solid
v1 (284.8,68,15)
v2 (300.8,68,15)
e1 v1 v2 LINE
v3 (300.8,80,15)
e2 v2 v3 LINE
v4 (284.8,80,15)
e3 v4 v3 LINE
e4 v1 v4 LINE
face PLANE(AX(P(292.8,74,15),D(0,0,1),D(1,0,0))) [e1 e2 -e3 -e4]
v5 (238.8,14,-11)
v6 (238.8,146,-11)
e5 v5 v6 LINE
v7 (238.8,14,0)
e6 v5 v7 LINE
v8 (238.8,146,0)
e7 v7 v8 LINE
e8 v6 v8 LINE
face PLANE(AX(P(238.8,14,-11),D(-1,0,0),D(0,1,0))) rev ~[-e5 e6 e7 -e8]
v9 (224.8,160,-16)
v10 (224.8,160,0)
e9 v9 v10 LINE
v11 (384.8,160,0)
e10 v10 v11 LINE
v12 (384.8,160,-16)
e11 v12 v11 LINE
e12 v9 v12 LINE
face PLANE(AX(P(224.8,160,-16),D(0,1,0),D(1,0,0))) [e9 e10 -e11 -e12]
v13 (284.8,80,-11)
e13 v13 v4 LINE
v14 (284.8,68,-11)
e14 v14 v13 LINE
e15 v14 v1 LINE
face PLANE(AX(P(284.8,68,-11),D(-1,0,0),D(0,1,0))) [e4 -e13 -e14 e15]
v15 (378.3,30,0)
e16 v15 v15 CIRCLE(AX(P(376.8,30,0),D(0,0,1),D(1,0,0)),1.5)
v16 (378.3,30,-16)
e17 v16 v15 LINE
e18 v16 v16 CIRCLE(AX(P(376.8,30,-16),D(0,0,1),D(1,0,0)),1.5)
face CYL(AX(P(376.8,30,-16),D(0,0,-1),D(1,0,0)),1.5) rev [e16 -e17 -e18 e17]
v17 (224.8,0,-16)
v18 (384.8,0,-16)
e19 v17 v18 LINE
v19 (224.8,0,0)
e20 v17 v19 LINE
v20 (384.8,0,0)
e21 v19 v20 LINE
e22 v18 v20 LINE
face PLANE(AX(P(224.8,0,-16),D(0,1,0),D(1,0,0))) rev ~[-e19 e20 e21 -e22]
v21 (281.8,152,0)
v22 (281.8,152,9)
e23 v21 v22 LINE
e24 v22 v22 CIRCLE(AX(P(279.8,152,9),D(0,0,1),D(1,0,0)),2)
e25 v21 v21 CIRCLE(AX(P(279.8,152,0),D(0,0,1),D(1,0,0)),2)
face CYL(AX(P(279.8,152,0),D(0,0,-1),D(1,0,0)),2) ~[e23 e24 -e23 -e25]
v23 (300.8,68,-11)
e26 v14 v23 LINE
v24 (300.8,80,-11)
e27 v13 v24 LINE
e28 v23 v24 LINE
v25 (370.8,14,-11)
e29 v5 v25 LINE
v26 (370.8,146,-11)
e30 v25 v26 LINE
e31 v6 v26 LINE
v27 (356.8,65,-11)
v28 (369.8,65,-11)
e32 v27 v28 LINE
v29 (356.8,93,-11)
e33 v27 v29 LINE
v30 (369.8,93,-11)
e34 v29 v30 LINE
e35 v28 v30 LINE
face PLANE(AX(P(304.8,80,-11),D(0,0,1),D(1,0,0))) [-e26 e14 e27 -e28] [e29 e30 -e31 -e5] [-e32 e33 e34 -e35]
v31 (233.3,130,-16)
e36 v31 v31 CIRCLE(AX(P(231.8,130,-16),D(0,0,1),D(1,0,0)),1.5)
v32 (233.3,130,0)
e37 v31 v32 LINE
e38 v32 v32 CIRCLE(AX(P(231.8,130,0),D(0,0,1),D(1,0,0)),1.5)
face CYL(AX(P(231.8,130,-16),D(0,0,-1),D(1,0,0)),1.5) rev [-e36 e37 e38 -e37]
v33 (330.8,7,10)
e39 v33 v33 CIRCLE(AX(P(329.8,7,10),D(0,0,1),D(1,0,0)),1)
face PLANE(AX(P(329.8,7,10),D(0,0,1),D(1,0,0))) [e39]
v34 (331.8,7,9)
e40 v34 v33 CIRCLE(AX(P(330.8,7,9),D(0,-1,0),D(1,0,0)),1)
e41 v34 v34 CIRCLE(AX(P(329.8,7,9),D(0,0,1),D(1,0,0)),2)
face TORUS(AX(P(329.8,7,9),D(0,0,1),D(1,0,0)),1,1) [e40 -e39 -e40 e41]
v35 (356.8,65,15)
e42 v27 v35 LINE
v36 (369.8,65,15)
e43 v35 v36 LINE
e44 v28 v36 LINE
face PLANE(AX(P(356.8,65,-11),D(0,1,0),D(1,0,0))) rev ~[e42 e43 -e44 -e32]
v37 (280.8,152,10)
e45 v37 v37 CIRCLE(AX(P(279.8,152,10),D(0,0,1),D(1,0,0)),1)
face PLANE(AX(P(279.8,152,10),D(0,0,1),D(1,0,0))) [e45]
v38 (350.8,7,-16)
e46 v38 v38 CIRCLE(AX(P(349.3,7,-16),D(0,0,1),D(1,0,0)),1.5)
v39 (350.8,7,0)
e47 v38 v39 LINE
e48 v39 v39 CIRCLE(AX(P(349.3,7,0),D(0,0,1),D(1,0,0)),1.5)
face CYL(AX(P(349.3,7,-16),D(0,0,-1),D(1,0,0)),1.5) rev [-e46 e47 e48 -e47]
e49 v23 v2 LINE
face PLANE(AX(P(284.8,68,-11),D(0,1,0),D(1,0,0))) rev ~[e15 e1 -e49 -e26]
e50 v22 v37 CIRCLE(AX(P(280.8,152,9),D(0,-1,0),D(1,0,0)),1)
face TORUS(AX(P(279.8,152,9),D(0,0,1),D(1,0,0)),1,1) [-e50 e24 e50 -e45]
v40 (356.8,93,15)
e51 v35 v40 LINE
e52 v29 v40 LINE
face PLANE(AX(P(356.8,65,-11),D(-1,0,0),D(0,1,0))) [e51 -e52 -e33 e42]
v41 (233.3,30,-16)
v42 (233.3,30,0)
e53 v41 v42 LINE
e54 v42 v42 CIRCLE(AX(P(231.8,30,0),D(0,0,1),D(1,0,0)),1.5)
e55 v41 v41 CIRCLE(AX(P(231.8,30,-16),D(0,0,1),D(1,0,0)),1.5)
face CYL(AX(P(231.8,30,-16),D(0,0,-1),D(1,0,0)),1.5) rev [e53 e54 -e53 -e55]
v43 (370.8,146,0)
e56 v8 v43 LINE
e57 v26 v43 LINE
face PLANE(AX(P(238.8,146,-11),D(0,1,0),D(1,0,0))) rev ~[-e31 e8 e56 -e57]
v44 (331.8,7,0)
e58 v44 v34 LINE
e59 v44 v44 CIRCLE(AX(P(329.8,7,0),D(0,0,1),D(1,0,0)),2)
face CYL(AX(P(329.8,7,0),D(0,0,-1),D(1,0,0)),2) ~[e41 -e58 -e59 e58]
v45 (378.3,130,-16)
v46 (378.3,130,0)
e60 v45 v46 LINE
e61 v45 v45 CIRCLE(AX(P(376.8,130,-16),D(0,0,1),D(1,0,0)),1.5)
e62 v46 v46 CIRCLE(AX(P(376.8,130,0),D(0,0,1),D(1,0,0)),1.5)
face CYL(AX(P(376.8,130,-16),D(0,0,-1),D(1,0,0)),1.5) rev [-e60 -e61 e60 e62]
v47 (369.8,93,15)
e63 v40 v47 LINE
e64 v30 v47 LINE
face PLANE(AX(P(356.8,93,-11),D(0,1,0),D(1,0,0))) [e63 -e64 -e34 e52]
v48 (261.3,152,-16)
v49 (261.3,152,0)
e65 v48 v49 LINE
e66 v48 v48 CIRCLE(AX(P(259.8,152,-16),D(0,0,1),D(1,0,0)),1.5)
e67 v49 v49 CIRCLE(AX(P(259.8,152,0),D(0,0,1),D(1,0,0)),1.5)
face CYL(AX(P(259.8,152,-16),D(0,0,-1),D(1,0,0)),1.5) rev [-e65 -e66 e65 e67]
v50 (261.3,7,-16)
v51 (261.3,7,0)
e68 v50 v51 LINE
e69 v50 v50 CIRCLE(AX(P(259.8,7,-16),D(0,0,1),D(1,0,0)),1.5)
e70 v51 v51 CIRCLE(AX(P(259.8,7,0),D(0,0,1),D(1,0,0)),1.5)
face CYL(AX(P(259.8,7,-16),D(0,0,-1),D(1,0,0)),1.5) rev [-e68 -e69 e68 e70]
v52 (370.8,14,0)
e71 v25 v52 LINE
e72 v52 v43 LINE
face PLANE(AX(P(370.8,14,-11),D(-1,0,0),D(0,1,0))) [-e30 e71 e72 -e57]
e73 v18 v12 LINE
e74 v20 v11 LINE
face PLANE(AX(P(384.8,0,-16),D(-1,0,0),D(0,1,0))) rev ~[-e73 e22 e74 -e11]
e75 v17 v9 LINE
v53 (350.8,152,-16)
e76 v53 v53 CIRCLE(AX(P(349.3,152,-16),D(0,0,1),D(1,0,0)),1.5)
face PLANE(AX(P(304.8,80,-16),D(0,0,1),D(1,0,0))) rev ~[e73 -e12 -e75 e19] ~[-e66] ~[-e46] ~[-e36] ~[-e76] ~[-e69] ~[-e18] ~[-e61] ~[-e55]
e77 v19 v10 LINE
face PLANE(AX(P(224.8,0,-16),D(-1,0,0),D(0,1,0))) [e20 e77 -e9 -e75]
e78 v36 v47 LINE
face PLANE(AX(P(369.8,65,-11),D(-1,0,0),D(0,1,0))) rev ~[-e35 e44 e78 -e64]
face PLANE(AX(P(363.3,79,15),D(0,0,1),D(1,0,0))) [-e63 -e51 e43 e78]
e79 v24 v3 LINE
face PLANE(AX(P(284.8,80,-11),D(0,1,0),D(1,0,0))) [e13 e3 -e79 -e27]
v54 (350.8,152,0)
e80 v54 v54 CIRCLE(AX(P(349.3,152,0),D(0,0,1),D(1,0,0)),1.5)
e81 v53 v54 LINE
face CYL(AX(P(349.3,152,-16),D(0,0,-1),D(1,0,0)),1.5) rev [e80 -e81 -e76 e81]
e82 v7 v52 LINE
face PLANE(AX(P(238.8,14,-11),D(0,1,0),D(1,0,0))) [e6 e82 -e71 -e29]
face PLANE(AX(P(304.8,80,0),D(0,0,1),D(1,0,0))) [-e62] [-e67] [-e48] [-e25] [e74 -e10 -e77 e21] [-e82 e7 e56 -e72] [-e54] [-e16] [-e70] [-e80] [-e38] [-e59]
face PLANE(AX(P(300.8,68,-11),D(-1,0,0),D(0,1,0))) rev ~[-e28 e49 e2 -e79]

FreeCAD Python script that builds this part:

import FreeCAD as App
import Part
import Sketcher
Q = App.Units.Quantity


def edges_at(feature, points):
    """Names of the edges that pass closest to the given points."""
    edges = feature.Shape.Edges
    near = lambda p: min(range(len(edges)), key=lambda i: edges[i].distToShape(Part.Vertex(*p))[0])
    return sorted({f"Edge{near(p) + 1}" for p in points})


def add_polygon(sketch, points):
    """Adds a closed chain of lines whose ends are joined by coincident constraints."""
    first, n = sketch.GeometryCount, len(points)
    for a, b in zip(points, points[1:] + points[:1]):
        sketch.addGeometry(Part.LineSegment(App.Vector(*a, 0), App.Vector(*b, 0)), False)
    for i in range(n):
        sketch.addConstraint(Sketcher.Constraint("Coincident", first + i, 2, first + (i + 1) % n, 1))

doc = App.newDocument("Part")
body = doc.addObject("PartDesign::Body", "Body")

sketch1 = doc.addObject("Sketcher::SketchObject", "Sketch")
body.addObject(sketch1)
sketch1.AttachmentSupport = (doc.XY_Plane, [""])
sketch1.MapMode = "FlatFace"
sketch1.AttachmentOffset = App.Placement(App.Vector(0, 0, 16), App.Rotation())
sketch1.addGeometry(Part.Circle(App.Vector(55, 152, 0), App.Vector(0, 0, 1), 2), False)
sketch1.addConstraint([
    Sketcher.Constraint("Diameter", 0, Q("4 mm")),
    Sketcher.Constraint("DistanceX", -1, 1, 0, 3, Q("55 mm")),
    Sketcher.Constraint("DistanceY", -1, 1, 0, 3, Q("152 mm")),
])
pad1 = doc.addObject("PartDesign::Pad", "Pad")
body.addObject(pad1)
pad1.Profile = sketch1
pad1.Length = 10
doc.recompute()

fillet = doc.addObject("PartDesign::Fillet", "Fillet")
body.addObject(fillet)
fillet.Base = (pad1, edges_at(pad1, [(53, 152, 26)]))
fillet.Radius = 1
body2 = doc.addObject("PartDesign::Body", "Body001")

sketch2 = doc.addObject("Sketcher::SketchObject", "Sketch001")
body2.addObject(sketch2)
sketch2.AttachmentSupport = (doc.getObject("XY_Plane001"), [""])
sketch2.MapMode = "FlatFace"
sketch2.AttachmentOffset = App.Placement(App.Vector(0, 0, 16), App.Rotation())
sketch2.addGeometry(Part.Circle(App.Vector(105, 7, 0), App.Vector(0, 0, 1), 2), False)
sketch2.addConstraint([
    Sketcher.Constraint("Diameter", 0, Q("4 mm")),
    Sketcher.Constraint("DistanceX", -1, 1, 0, 3, Q("105 mm")),
    Sketcher.Constraint("DistanceY", -1, 1, 0, 3, Q("7 mm")),
])
pad2 = doc.addObject("PartDesign::Pad", "Pad001")
body2.addObject(pad2)
pad2.Profile = sketch2
pad2.Length = 10
doc.recompute()

fillet2 = doc.addObject("PartDesign::Fillet", "Fillet001")
body2.addObject(fillet2)
fillet2.Base = (pad2, edges_at(pad2, [(103, 7, 26)]))
fillet2.Radius = 1
body3 = doc.addObject("PartDesign::Body", "Body002")

sketch3 = doc.addObject("Sketcher::SketchObject", "Sketch002")
body3.addObject(sketch3)
sketch3.AttachmentSupport = (doc.getObject("XY_Plane002"), [""])
sketch3.MapMode = "FlatFace"
sketch3.AttachmentOffset = App.Placement(App.Vector(0, 0, 5), App.Rotation())
add_polygon(sketch3, [(60, 80), (60, 68), (76, 68), (76, 80)])
sketch3.addConstraint([
    Sketcher.Constraint("Vertical", 0),
    Sketcher.Constraint("Horizontal", 1),
    Sketcher.Constraint("Vertical", 2),
    Sketcher.Constraint("Horizontal", 3),
    Sketcher.Constraint("DistanceX", 1, 1, 1, 2, Q("16 mm")),
    Sketcher.Constraint("DistanceY", 0, 2, 0, 1, Q("12 mm")),
    Sketcher.Constraint("DistanceX", -1, 1, 0, 2, Q("60 mm")),
    Sketcher.Constraint("DistanceY", -1, 1, 0, 2, Q("68 mm")),
])
pad3 = doc.addObject("PartDesign::Pad", "Pad002")
body3.addObject(pad3)
pad3.Profile = sketch3
pad3.Length = 26
body4 = doc.addObject("PartDesign::Body", "Body003")

sketch4 = doc.addObject("Sketcher::SketchObject", "Sketch003")
body4.addObject(sketch4)
sketch4.AttachmentSupport = (doc.getObject("XY_Plane003"), [""])
sketch4.MapMode = "FlatFace"
sketch4.AttachmentOffset = App.Placement(App.Vector(0, 0, 5), App.Rotation())
add_polygon(sketch4, [(132, 93), (132, 65), (145, 65), (145, 93)])
sketch4.addConstraint([
    Sketcher.Constraint("Vertical", 0),
    Sketcher.Constraint("Horizontal", 1),
    Sketcher.Constraint("Vertical", 2),
    Sketcher.Constraint("Horizontal", 3),
    Sketcher.Constraint("DistanceX", 1, 1, 1, 2, Q("13 mm")),
    Sketcher.Constraint("DistanceY", 0, 2, 0, 1, Q("28 mm")),
    Sketcher.Constraint("DistanceX", -1, 1, 0, 2, Q("132 mm")),
    Sketcher.Constraint("DistanceY", -1, 1, 0, 2, Q("65 mm")),
])
pad4 = doc.addObject("PartDesign::Pad", "Pad003")
body4.addObject(pad4)
pad4.Profile = sketch4
pad4.Length = 26
body5 = doc.addObject("PartDesign::Body", "Body004")

sketch5 = doc.addObject("Sketcher::SketchObject", "Sketch004")
body5.addObject(sketch5)
sketch5.AttachmentSupport = (doc.getObject("XY_Plane004"), [""])
sketch5.MapMode = "FlatFace"
sketch5.addGeometry(Part.Circle(App.Vector(35, 7, 0), App.Vector(0, 0, 1), 1.5), False)
sketch5.addConstraint([
    Sketcher.Constraint("Diameter", 0, Q("3 mm")),
    Sketcher.Constraint("DistanceX", -1, 1, 0, 3, Q("35 mm")),
    Sketcher.Constraint("DistanceY", -1, 1, 0, 3, Q("7 mm")),
])
pad5 = doc.addObject("PartDesign::Pad", "Pad004")
body5.addObject(pad5)
pad5.Profile = sketch5
pad5.Length = 16
body6 = doc.addObject("PartDesign::Body", "Body005")

sketch6 = doc.addObject("Sketcher::SketchObject", "Sketch005")
body6.addObject(sketch6)
sketch6.AttachmentSupport = (doc.getObject("XY_Plane005"), [""])
sketch6.MapMode = "FlatFace"
sketch6.addGeometry(Part.Circle(App.Vector(124.5, 7, 0), App.Vector(0, 0, 1), 1.5), False)
sketch6.addConstraint([
    Sketcher.Constraint("Diameter", 0, Q("3 mm")),
    Sketcher.Constraint("DistanceY", -1, 1, 0, 3, Q("7 mm")),
    Sketcher.Constraint("DistanceX", -1, 1, 0, 3, Q("124.5 mm")),
])
pad6 = doc.addObject("PartDesign::Pad", "Pad005")
body6.addObject(pad6)
pad6.Profile = sketch6
pad6.Length = 16
body7 = doc.addObject("PartDesign::Body", "Body006")

sketch7 = doc.addObject("Sketcher::SketchObject", "Sketch006")
body7.addObject(sketch7)
sketch7.AttachmentSupport = (doc.getObject("XY_Plane006"), [""])
sketch7.MapMode = "FlatFace"
sketch7.addGeometry(Part.Circle(App.Vector(35, 152, 0), App.Vector(0, 0, 1), 1.5), False)
sketch7.addConstraint([
    Sketcher.Constraint("Diameter", 0, Q("3 mm")),
    Sketcher.Constraint("DistanceX", -1, 1, 0, 3, Q("35 mm")),
    Sketcher.Constraint("DistanceY", -1, 1, 0, 3, Q("152 mm")),
])
pad7 = doc.addObject("PartDesign::Pad", "Pad006")
body7.addObject(pad7)
pad7.Profile = sketch7
pad7.Length = 16
body8 = doc.addObject("PartDesign::Body", "Body007")

sketch8 = doc.addObject("Sketcher::SketchObject", "Sketch007")
body8.addObject(sketch8)
sketch8.AttachmentSupport = (doc.getObject("XY_Plane007"), [""])
sketch8.MapMode = "FlatFace"
sketch8.addGeometry(Part.Circle(App.Vector(124.5, 152, 0), App.Vector(0, 0, 1), 1.5), False)
sketch8.addConstraint([
    Sketcher.Constraint("Diameter", 0, Q("3 mm")),
    Sketcher.Constraint("DistanceY", -1, 1, 0, 3, Q("152 mm")),
    Sketcher.Constraint("DistanceX", -1, 1, 0, 3, Q("124.5 mm")),
])
pad8 = doc.addObject("PartDesign::Pad", "Pad007")
body8.addObject(pad8)
pad8.Profile = sketch8
pad8.Length = 16
body9 = doc.addObject("PartDesign::Body", "Body008")

sketch9 = doc.addObject("Sketcher::SketchObject", "Sketch008")
body9.addObject(sketch9)
sketch9.AttachmentSupport = (doc.getObject("XY_Plane008"), [""])
sketch9.MapMode = "FlatFace"
sketch9.addGeometry(Part.Circle(App.Vector(7, 30, 0), App.Vector(0, 0, 1), 1.5), False)
sketch9.addConstraint([
    Sketcher.Constraint("Diameter", 0, Q("3 mm")),
    Sketcher.Constraint("DistanceX", -1, 1, 0, 3, Q("7 mm")),
    Sketcher.Constraint("DistanceY", -1, 1, 0, 3, Q("30 mm")),
])
pad9 = doc.addObject("PartDesign::Pad", "Pad008")
body9.addObject(pad9)
pad9.Profile = sketch9
pad9.Length = 16
body10 = doc.addObject("PartDesign::Body", "Body009")

sketch10 = doc.addObject("Sketcher::SketchObject", "Sketch009")
body10.addObject(sketch10)
sketch10.AttachmentSupport = (doc.getObject("XY_Plane009"), [""])
sketch10.MapMode = "FlatFace"
sketch10.addGeometry(Part.Circle(App.Vector(7, 130, 0), App.Vector(0, 0, 1), 1.5), False)
sketch10.addConstraint([
    Sketcher.Constraint("Diameter", 0, Q("3 mm")),
    Sketcher.Constraint("DistanceX", -1, 1, 0, 3, Q("7 mm")),
    Sketcher.Constraint("DistanceY", -1, 1, 0, 3, Q("130 mm")),
])
pad10 = doc.addObject("PartDesign::Pad", "Pad009")
body10.addObject(pad10)
pad10.Profile = sketch10
pad10.Length = 16
body11 = doc.addObject("PartDesign::Body", "Body010")

sketch11 = doc.addObject("Sketcher::SketchObject", "Sketch010")
body11.addObject(sketch11)
sketch11.AttachmentSupport = (doc.getObject("XY_Plane010"), [""])
sketch11.MapMode = "FlatFace"
sketch11.addGeometry(Part.Circle(App.Vector(152, 30, 0), App.Vector(0, 0, 1), 1.5), False)
sketch11.addConstraint([
    Sketcher.Constraint("Diameter", 0, Q("3 mm")),
    Sketcher.Constraint("DistanceX", -1, 1, 0, 3, Q("152 mm")),
    Sketcher.Constraint("DistanceY", -1, 1, 0, 3, Q("30 mm")),
])
pad11 = doc.addObject("PartDesign::Pad", "Pad010")
body11.addObject(pad11)
pad11.Profile = sketch11
pad11.Length = 16
body12 = doc.addObject("PartDesign::Body", "Body011")
body12.AllowCompound = True

sketch12 = doc.addObject("Sketcher::SketchObject", "Sketch011")
body12.addObject(sketch12)
sketch12.AttachmentSupport = (doc.getObject("XY_Plane011"), [""])
sketch12.MapMode = "FlatFace"
sketch12.addGeometry(Part.Circle(App.Vector(152, 130, 0), App.Vector(0, 0, 1), 1.5), False)
sketch12.addConstraint([
    Sketcher.Constraint("Diameter", 0, Q("3 mm")),
    Sketcher.Constraint("DistanceX", -1, 1, 0, 3, Q("152 mm")),
    Sketcher.Constraint("DistanceY", -1, 1, 0, 3, Q("130 mm")),
])
pad12 = doc.addObject("PartDesign::Pad", "Pad011")
body12.addObject(pad12)
pad12.Profile = sketch12
pad12.Length = 16
doc.recompute()

boolean = doc.addObject("PartDesign::Boolean", "Boolean")
body12.addObject(boolean)
boolean.Type = "Fuse"
boolean.addObjects([body5])
doc.recompute()

boolean2 = doc.addObject("PartDesign::Boolean", "Boolean001")
body12.addObject(boolean2)
boolean2.Type = "Fuse"
boolean2.addObjects([body6])
doc.recompute()

boolean3 = doc.addObject("PartDesign::Boolean", "Boolean002")
body12.addObject(boolean3)
boolean3.Type = "Fuse"
boolean3.addObjects([body7])
doc.recompute()

boolean4 = doc.addObject("PartDesign::Boolean", "Boolean003")
body12.addObject(boolean4)
boolean4.Type = "Fuse"
boolean4.addObjects([body8])
doc.recompute()

boolean5 = doc.addObject("PartDesign::Boolean", "Boolean004")
body12.addObject(boolean5)
boolean5.Type = "Fuse"
boolean5.addObjects([body9])
doc.recompute()

boolean6 = doc.addObject("PartDesign::Boolean", "Boolean005")
body12.addObject(boolean6)
boolean6.Type = "Fuse"
boolean6.addObjects([body10])
doc.recompute()

boolean7 = doc.addObject("PartDesign::Boolean", "Boolean006")
body12.addObject(boolean7)
boolean7.Type = "Fuse"
boolean7.addObjects([body11])
body13 = doc.addObject("PartDesign::Body", "Body012")

sketch13 = doc.addObject("Sketcher::SketchObject", "Sketch012")
body13.addObject(sketch13)
sketch13.AttachmentSupport = (doc.getObject("XY_Plane012"), [""])
sketch13.MapMode = "FlatFace"
sketch13.AttachmentOffset = App.Placement(App.Vector(0, 0, 5), App.Rotation())
add_polygon(sketch13, [(14, 146), (14, 14), (146, 14), (146, 146)])
sketch13.addConstraint([
    Sketcher.Constraint("Vertical", 0),
    Sketcher.Constraint("Horizontal", 1),
    Sketcher.Constraint("Vertical", 2),
    Sketcher.Constraint("Horizontal", 3),
    Sketcher.Constraint("Equal", 3, 0),
    Sketcher.Constraint("DistanceX", 1, 1, 1, 2, Q("132 mm")),
    Sketcher.Constraint("DistanceX", -1, 1, 0, 2, Q("14 mm")),
    Sketcher.Constraint("DistanceY", -1, 1, 0, 2, Q("14 mm")),
])
pad13 = doc.addObject("PartDesign::Pad", "Pad012")
body13.addObject(pad13)
pad13.Profile = sketch13
pad13.Length = 11
body14 = doc.addObject("PartDesign::Body", "Body013")

sketch14 = doc.addObject("Sketcher::SketchObject", "Sketch013")
body14.addObject(sketch14)
sketch14.AttachmentSupport = (doc.getObject("XY_Plane013"), [""])
sketch14.MapMode = "FlatFace"
add_polygon(sketch14, [(0, 160), (0, 0), (160, 0), (160, 160)])
sketch14.addConstraint([
    Sketcher.Constraint("Vertical", 0),
    Sketcher.Constraint("Horizontal", 1),
    Sketcher.Constraint("Vertical", 2),
    Sketcher.Constraint("Horizontal", 3),
    Sketcher.Constraint("Coincident", 0, 2, -1, 1),
    Sketcher.Constraint("Equal", 3, 0),
    Sketcher.Constraint("DistanceX", 1, 1, 1, 2, Q("160 mm")),
])
pad14 = doc.addObject("PartDesign::Pad", "Pad013")
body14.addObject(pad14)
pad14.Profile = sketch14
pad14.Length = 16
doc.recompute()

boolean8 = doc.addObject("PartDesign::Boolean", "Boolean007")
body14.addObject(boolean8)
boolean8.Type = "Cut"
boolean8.addObjects([body13])
doc.recompute()

boolean9 = doc.addObject("PartDesign::Boolean", "Boolean008")
body14.addObject(boolean9)
boolean9.Type = "Cut"
boolean9.addObjects([body12])
doc.recompute()

boolean10 = doc.addObject("PartDesign::Boolean", "Boolean009")
body14.addObject(boolean10)
boolean10.Type = "Fuse"
boolean10.addObjects([body3])
doc.recompute()

boolean11 = doc.addObject("PartDesign::Boolean", "Boolean010")
body14.addObject(boolean11)
boolean11.Type = "Fuse"
boolean11.addObjects([body4])
doc.recompute()

boolean12 = doc.addObject("PartDesign::Boolean", "Boolean011")
body14.addObject(boolean12)
boolean12.Type = "Fuse"
boolean12.addObjects([body])
doc.recompute()

boolean13 = doc.addObject("PartDesign::Boolean", "Boolean012")
body14.addObject(boolean13)
boolean13.Type = "Fuse"
boolean13.addObjects([body2])
body15 = doc.addObject("PartDesign::Body", "Body014")
doc.recompute()

body14.Placement = App.Placement(App.Vector(224.8, 0, -16), App.Rotation(App.Vector(0, 0, 1), 0))
boolean14 = doc.addObject("PartDesign::Boolean", "Boolean013")
body15.addObject(boolean14)
boolean14.Type = "Fuse"
boolean14.addObjects([body14])

doc.recompute()
